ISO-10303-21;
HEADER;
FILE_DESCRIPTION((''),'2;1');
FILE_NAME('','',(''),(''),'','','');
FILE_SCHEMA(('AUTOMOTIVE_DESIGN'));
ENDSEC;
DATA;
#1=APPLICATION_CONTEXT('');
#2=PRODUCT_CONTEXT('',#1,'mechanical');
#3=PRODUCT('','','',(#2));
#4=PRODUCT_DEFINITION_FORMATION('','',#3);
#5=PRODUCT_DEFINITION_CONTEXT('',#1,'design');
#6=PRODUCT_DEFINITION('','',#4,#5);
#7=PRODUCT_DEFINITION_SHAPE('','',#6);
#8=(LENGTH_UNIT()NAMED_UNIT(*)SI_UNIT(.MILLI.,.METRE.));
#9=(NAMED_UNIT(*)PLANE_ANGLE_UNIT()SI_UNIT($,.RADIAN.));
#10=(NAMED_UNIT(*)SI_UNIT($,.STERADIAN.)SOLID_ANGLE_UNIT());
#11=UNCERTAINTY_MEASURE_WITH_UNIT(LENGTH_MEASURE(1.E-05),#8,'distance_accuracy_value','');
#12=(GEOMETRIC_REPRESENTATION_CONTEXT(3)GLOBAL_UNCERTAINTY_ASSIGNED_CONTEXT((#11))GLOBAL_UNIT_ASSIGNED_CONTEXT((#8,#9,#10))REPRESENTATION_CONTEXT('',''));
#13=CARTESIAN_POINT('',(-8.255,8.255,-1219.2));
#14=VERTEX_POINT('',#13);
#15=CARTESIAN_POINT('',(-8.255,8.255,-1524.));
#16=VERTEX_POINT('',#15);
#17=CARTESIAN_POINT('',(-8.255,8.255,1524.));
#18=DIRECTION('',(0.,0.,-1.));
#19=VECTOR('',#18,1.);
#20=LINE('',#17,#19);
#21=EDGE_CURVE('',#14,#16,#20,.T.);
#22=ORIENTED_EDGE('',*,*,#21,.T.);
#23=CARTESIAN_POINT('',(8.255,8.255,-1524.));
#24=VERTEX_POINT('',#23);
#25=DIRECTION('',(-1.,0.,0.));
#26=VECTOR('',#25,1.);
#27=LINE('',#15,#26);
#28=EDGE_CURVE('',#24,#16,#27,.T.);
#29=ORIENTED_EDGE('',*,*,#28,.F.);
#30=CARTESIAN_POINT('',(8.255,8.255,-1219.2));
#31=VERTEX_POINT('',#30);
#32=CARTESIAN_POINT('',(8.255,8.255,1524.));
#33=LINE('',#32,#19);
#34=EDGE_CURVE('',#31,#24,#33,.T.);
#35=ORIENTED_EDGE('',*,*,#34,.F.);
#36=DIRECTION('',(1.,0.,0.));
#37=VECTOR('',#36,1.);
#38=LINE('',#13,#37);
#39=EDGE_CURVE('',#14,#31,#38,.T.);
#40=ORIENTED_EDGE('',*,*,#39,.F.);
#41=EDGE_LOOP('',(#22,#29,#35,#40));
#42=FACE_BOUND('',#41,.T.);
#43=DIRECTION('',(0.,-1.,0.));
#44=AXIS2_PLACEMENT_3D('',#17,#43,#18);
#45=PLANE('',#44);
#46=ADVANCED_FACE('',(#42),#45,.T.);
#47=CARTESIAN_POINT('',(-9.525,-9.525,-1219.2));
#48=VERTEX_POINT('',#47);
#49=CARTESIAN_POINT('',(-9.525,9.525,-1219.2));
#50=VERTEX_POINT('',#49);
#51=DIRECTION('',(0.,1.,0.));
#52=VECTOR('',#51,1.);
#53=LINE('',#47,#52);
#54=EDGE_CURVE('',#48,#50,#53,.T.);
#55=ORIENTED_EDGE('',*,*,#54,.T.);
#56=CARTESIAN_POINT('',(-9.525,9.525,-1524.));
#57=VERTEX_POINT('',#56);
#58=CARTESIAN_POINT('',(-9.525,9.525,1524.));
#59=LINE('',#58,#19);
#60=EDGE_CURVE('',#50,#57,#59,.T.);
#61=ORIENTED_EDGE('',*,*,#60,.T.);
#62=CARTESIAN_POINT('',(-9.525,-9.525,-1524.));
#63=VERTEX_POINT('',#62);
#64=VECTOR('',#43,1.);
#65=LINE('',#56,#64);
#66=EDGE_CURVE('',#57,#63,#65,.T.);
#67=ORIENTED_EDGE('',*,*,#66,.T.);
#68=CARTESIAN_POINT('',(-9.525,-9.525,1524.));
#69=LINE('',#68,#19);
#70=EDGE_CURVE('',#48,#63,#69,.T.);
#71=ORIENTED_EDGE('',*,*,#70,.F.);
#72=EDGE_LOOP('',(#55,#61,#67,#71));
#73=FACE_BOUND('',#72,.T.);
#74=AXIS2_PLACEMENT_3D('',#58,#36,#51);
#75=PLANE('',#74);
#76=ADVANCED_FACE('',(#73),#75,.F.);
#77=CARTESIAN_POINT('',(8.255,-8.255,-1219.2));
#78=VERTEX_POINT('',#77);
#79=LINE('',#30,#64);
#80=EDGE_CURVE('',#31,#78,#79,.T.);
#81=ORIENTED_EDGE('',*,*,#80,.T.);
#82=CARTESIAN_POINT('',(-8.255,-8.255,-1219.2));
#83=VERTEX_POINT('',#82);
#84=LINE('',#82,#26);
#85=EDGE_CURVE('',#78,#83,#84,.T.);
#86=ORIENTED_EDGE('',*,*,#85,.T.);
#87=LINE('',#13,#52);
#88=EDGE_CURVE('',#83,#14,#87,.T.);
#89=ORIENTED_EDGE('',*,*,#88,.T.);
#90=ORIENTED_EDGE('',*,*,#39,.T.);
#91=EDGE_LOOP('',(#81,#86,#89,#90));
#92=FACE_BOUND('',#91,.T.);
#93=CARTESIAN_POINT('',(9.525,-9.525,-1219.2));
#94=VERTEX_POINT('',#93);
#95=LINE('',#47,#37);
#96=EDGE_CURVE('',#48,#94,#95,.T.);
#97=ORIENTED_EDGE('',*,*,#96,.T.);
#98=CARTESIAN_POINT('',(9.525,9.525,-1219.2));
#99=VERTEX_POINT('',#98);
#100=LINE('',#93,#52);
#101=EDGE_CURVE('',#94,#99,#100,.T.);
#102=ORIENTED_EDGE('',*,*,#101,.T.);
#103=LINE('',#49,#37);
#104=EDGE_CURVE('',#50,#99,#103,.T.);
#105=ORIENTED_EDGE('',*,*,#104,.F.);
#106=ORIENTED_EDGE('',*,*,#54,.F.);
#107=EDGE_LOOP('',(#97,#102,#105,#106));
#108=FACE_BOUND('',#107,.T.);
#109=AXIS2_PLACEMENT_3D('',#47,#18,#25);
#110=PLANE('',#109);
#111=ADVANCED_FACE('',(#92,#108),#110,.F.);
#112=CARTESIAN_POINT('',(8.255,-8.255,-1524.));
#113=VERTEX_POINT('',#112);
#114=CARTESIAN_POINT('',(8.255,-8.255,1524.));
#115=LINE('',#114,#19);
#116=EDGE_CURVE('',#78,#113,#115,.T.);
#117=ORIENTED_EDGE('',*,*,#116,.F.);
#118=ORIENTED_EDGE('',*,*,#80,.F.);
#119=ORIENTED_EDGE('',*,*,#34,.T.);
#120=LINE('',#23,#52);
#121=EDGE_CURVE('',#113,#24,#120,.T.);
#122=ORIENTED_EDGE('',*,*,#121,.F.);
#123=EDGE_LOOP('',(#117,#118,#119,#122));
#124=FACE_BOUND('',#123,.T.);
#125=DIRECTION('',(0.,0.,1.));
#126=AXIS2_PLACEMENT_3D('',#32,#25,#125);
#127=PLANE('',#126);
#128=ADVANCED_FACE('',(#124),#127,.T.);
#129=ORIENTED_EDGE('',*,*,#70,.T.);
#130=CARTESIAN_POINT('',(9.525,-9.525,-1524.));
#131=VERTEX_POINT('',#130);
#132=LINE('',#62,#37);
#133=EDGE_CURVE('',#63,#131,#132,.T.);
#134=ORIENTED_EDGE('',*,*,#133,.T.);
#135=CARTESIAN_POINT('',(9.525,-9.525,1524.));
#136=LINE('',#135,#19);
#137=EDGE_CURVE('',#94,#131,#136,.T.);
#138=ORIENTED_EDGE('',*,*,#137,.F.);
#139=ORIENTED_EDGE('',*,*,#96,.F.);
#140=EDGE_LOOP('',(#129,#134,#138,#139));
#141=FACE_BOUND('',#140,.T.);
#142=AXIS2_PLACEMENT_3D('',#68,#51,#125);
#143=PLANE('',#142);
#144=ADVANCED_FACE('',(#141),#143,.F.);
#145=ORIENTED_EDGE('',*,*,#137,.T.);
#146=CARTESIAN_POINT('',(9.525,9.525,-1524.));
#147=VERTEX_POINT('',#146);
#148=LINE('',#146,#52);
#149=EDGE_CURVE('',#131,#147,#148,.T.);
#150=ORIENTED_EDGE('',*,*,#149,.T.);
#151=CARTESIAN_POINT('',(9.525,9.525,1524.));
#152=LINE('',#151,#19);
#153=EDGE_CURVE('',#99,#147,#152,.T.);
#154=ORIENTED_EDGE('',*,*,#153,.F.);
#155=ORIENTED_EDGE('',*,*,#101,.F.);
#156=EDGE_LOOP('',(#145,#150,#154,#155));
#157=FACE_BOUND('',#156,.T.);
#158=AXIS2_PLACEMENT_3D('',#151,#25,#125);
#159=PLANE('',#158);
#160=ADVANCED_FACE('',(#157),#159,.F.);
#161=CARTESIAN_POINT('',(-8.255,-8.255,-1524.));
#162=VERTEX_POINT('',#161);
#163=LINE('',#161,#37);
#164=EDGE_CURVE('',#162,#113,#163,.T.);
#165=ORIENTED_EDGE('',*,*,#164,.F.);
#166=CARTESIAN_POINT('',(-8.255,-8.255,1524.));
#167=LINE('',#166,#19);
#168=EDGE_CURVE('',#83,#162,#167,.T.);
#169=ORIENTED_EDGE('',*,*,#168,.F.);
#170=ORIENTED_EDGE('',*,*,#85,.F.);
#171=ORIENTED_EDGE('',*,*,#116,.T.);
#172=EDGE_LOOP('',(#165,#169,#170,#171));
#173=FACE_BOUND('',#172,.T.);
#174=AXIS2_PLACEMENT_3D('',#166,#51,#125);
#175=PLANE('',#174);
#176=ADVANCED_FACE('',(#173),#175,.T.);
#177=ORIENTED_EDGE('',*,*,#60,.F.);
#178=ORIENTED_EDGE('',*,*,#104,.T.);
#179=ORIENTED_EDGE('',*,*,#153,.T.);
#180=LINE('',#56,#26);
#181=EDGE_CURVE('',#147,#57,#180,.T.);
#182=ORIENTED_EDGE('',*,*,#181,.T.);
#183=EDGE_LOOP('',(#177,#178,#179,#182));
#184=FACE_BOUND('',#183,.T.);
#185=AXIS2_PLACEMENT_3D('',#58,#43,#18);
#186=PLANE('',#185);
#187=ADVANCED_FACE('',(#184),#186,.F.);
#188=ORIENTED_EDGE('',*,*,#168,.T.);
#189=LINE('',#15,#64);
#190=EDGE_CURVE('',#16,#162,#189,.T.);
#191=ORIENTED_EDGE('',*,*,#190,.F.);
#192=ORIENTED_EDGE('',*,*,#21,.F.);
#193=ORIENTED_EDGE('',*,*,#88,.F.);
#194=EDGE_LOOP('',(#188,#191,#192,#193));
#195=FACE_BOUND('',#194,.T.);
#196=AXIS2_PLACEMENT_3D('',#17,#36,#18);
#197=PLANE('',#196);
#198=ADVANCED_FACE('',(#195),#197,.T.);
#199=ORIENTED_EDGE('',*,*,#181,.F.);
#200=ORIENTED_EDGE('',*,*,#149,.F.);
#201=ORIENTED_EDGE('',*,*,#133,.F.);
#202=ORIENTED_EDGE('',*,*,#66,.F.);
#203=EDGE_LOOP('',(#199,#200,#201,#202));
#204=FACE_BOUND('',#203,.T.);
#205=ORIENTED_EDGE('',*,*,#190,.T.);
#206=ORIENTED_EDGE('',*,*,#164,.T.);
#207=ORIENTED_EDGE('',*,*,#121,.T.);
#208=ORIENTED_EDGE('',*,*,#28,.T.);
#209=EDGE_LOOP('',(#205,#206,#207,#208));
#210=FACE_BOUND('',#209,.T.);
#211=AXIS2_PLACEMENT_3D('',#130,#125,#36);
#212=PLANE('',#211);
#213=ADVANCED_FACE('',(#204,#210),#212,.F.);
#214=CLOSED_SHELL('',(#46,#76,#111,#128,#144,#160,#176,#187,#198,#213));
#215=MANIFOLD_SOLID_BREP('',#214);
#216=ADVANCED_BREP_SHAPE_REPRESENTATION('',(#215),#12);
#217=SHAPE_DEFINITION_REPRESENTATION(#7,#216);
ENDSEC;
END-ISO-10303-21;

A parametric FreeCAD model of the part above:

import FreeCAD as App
import Part
import Sketcher
from FreeCAD import Vector
Q = App.Units.Quantity


def add_polygon(sketch, points):
    """Adds a closed chain of lines whose ends are joined by coincident constraints."""
    first, n = sketch.GeometryCount, len(points)
    for a, b in zip(points, points[1:] + points[:1]):
        sketch.addGeometry(Part.LineSegment(App.Vector(*a, 0), App.Vector(*b, 0)), False)
    for i in range(n):
        sketch.addConstraint(Sketcher.Constraint("Coincident", first + i, 2, first + (i + 1) % n, 1))

doc = App.newDocument("Part")
body = doc.addObject("PartDesign::Body", "Body")

# Sketch on XY plane
sketch1 = doc.addObject("Sketcher::SketchObject", "Sketch")
body.addObject(sketch1)
sketch1.AttachmentSupport = (doc.XY_Plane, [""])
sketch1.MapMode = "FlatFace"
add_polygon(sketch1, [(-9.525, 9.525), (-9.525, -9.525), (9.525, -9.525), (9.525, 9.525)])  # lines 0-3
add_polygon(sketch1, [(8.255, -8.255), (-8.255, -8.255), (-8.255, 8.255), (8.255, 8.255)])  # lines 4-7
sketch1.addConstraint([
    Sketcher.Constraint("Vertical", 0),
    Sketcher.Constraint("Horizontal", 1),
    Sketcher.Constraint("Vertical", 2),
    Sketcher.Constraint("Horizontal", 3),
    Sketcher.Constraint("Horizontal", 4),
    Sketcher.Constraint("Vertical", 5),
    Sketcher.Constraint("Horizontal", 6),
    Sketcher.Constraint("Vertical", 7),
    Sketcher.Constraint("Symmetric", 0, 2, 2, 2, -1, 1),
    Sketcher.Constraint("Symmetric", 4, 2, 6, 2, -1, 1),
    Sketcher.Constraint("Equal", 3, 0),
    Sketcher.Constraint("Equal", 6, 5),
    Sketcher.Constraint("DistanceX", 1, 1, 1, 2, Q("0.75 in")),
    Sketcher.Constraint("DistanceX", 4, 2, 4, 1, Q("0.65 in")),
])
pad1 = doc.addObject("PartDesign::Pad", "Pad")
body.addObject(pad1)
pad1.Profile = sketch1
pad1.Length = Q("120 in")
pad1.Midplane = True

# Sketch on YZ plane
sketch2 = doc.addObject("Sketcher::SketchObject", "Sketch001")
body.addObject(sketch2)
sketch2.AttachmentSupport = (doc.YZ_Plane, [""])
sketch2.MapMode = "FlatFace"
sketch2.AttachmentOffset = App.Placement(Vector(0, 0, 0.375 * 25.4), App.Rotation())
add_polygon(sketch2, [(9.525, 1524), (-9.525, 1524), (-9.525, -1219.2), (9.525, -1219.2)])  # lines 0-3
sketch2.addConstraint([
    Sketcher.Constraint("Horizontal", 0),
    Sketcher.Constraint("Vertical", 1),
    Sketcher.Constraint("Horizontal", 2),
    Sketcher.Constraint("Vertical", 3),
    Sketcher.Constraint("DistanceY", 1, 2, 1, 1, Q("108 in")),
    Sketcher.Constraint("DistanceY", -1, 1, 0, 2, Q("60 in")),
    Sketcher.Constraint("DistanceX", 0, 2, 0, 1, Q("0.75 in")),
    Sketcher.Constraint("DistanceX", 0, 2, -1, 1, Q("0.375 in")),
])
pocket1 = doc.addObject("PartDesign::Pocket", "Pocket")
body.addObject(pocket1)
pocket1.Profile = sketch2
pocket1.Type = "ThroughAll"

doc.recompute()
